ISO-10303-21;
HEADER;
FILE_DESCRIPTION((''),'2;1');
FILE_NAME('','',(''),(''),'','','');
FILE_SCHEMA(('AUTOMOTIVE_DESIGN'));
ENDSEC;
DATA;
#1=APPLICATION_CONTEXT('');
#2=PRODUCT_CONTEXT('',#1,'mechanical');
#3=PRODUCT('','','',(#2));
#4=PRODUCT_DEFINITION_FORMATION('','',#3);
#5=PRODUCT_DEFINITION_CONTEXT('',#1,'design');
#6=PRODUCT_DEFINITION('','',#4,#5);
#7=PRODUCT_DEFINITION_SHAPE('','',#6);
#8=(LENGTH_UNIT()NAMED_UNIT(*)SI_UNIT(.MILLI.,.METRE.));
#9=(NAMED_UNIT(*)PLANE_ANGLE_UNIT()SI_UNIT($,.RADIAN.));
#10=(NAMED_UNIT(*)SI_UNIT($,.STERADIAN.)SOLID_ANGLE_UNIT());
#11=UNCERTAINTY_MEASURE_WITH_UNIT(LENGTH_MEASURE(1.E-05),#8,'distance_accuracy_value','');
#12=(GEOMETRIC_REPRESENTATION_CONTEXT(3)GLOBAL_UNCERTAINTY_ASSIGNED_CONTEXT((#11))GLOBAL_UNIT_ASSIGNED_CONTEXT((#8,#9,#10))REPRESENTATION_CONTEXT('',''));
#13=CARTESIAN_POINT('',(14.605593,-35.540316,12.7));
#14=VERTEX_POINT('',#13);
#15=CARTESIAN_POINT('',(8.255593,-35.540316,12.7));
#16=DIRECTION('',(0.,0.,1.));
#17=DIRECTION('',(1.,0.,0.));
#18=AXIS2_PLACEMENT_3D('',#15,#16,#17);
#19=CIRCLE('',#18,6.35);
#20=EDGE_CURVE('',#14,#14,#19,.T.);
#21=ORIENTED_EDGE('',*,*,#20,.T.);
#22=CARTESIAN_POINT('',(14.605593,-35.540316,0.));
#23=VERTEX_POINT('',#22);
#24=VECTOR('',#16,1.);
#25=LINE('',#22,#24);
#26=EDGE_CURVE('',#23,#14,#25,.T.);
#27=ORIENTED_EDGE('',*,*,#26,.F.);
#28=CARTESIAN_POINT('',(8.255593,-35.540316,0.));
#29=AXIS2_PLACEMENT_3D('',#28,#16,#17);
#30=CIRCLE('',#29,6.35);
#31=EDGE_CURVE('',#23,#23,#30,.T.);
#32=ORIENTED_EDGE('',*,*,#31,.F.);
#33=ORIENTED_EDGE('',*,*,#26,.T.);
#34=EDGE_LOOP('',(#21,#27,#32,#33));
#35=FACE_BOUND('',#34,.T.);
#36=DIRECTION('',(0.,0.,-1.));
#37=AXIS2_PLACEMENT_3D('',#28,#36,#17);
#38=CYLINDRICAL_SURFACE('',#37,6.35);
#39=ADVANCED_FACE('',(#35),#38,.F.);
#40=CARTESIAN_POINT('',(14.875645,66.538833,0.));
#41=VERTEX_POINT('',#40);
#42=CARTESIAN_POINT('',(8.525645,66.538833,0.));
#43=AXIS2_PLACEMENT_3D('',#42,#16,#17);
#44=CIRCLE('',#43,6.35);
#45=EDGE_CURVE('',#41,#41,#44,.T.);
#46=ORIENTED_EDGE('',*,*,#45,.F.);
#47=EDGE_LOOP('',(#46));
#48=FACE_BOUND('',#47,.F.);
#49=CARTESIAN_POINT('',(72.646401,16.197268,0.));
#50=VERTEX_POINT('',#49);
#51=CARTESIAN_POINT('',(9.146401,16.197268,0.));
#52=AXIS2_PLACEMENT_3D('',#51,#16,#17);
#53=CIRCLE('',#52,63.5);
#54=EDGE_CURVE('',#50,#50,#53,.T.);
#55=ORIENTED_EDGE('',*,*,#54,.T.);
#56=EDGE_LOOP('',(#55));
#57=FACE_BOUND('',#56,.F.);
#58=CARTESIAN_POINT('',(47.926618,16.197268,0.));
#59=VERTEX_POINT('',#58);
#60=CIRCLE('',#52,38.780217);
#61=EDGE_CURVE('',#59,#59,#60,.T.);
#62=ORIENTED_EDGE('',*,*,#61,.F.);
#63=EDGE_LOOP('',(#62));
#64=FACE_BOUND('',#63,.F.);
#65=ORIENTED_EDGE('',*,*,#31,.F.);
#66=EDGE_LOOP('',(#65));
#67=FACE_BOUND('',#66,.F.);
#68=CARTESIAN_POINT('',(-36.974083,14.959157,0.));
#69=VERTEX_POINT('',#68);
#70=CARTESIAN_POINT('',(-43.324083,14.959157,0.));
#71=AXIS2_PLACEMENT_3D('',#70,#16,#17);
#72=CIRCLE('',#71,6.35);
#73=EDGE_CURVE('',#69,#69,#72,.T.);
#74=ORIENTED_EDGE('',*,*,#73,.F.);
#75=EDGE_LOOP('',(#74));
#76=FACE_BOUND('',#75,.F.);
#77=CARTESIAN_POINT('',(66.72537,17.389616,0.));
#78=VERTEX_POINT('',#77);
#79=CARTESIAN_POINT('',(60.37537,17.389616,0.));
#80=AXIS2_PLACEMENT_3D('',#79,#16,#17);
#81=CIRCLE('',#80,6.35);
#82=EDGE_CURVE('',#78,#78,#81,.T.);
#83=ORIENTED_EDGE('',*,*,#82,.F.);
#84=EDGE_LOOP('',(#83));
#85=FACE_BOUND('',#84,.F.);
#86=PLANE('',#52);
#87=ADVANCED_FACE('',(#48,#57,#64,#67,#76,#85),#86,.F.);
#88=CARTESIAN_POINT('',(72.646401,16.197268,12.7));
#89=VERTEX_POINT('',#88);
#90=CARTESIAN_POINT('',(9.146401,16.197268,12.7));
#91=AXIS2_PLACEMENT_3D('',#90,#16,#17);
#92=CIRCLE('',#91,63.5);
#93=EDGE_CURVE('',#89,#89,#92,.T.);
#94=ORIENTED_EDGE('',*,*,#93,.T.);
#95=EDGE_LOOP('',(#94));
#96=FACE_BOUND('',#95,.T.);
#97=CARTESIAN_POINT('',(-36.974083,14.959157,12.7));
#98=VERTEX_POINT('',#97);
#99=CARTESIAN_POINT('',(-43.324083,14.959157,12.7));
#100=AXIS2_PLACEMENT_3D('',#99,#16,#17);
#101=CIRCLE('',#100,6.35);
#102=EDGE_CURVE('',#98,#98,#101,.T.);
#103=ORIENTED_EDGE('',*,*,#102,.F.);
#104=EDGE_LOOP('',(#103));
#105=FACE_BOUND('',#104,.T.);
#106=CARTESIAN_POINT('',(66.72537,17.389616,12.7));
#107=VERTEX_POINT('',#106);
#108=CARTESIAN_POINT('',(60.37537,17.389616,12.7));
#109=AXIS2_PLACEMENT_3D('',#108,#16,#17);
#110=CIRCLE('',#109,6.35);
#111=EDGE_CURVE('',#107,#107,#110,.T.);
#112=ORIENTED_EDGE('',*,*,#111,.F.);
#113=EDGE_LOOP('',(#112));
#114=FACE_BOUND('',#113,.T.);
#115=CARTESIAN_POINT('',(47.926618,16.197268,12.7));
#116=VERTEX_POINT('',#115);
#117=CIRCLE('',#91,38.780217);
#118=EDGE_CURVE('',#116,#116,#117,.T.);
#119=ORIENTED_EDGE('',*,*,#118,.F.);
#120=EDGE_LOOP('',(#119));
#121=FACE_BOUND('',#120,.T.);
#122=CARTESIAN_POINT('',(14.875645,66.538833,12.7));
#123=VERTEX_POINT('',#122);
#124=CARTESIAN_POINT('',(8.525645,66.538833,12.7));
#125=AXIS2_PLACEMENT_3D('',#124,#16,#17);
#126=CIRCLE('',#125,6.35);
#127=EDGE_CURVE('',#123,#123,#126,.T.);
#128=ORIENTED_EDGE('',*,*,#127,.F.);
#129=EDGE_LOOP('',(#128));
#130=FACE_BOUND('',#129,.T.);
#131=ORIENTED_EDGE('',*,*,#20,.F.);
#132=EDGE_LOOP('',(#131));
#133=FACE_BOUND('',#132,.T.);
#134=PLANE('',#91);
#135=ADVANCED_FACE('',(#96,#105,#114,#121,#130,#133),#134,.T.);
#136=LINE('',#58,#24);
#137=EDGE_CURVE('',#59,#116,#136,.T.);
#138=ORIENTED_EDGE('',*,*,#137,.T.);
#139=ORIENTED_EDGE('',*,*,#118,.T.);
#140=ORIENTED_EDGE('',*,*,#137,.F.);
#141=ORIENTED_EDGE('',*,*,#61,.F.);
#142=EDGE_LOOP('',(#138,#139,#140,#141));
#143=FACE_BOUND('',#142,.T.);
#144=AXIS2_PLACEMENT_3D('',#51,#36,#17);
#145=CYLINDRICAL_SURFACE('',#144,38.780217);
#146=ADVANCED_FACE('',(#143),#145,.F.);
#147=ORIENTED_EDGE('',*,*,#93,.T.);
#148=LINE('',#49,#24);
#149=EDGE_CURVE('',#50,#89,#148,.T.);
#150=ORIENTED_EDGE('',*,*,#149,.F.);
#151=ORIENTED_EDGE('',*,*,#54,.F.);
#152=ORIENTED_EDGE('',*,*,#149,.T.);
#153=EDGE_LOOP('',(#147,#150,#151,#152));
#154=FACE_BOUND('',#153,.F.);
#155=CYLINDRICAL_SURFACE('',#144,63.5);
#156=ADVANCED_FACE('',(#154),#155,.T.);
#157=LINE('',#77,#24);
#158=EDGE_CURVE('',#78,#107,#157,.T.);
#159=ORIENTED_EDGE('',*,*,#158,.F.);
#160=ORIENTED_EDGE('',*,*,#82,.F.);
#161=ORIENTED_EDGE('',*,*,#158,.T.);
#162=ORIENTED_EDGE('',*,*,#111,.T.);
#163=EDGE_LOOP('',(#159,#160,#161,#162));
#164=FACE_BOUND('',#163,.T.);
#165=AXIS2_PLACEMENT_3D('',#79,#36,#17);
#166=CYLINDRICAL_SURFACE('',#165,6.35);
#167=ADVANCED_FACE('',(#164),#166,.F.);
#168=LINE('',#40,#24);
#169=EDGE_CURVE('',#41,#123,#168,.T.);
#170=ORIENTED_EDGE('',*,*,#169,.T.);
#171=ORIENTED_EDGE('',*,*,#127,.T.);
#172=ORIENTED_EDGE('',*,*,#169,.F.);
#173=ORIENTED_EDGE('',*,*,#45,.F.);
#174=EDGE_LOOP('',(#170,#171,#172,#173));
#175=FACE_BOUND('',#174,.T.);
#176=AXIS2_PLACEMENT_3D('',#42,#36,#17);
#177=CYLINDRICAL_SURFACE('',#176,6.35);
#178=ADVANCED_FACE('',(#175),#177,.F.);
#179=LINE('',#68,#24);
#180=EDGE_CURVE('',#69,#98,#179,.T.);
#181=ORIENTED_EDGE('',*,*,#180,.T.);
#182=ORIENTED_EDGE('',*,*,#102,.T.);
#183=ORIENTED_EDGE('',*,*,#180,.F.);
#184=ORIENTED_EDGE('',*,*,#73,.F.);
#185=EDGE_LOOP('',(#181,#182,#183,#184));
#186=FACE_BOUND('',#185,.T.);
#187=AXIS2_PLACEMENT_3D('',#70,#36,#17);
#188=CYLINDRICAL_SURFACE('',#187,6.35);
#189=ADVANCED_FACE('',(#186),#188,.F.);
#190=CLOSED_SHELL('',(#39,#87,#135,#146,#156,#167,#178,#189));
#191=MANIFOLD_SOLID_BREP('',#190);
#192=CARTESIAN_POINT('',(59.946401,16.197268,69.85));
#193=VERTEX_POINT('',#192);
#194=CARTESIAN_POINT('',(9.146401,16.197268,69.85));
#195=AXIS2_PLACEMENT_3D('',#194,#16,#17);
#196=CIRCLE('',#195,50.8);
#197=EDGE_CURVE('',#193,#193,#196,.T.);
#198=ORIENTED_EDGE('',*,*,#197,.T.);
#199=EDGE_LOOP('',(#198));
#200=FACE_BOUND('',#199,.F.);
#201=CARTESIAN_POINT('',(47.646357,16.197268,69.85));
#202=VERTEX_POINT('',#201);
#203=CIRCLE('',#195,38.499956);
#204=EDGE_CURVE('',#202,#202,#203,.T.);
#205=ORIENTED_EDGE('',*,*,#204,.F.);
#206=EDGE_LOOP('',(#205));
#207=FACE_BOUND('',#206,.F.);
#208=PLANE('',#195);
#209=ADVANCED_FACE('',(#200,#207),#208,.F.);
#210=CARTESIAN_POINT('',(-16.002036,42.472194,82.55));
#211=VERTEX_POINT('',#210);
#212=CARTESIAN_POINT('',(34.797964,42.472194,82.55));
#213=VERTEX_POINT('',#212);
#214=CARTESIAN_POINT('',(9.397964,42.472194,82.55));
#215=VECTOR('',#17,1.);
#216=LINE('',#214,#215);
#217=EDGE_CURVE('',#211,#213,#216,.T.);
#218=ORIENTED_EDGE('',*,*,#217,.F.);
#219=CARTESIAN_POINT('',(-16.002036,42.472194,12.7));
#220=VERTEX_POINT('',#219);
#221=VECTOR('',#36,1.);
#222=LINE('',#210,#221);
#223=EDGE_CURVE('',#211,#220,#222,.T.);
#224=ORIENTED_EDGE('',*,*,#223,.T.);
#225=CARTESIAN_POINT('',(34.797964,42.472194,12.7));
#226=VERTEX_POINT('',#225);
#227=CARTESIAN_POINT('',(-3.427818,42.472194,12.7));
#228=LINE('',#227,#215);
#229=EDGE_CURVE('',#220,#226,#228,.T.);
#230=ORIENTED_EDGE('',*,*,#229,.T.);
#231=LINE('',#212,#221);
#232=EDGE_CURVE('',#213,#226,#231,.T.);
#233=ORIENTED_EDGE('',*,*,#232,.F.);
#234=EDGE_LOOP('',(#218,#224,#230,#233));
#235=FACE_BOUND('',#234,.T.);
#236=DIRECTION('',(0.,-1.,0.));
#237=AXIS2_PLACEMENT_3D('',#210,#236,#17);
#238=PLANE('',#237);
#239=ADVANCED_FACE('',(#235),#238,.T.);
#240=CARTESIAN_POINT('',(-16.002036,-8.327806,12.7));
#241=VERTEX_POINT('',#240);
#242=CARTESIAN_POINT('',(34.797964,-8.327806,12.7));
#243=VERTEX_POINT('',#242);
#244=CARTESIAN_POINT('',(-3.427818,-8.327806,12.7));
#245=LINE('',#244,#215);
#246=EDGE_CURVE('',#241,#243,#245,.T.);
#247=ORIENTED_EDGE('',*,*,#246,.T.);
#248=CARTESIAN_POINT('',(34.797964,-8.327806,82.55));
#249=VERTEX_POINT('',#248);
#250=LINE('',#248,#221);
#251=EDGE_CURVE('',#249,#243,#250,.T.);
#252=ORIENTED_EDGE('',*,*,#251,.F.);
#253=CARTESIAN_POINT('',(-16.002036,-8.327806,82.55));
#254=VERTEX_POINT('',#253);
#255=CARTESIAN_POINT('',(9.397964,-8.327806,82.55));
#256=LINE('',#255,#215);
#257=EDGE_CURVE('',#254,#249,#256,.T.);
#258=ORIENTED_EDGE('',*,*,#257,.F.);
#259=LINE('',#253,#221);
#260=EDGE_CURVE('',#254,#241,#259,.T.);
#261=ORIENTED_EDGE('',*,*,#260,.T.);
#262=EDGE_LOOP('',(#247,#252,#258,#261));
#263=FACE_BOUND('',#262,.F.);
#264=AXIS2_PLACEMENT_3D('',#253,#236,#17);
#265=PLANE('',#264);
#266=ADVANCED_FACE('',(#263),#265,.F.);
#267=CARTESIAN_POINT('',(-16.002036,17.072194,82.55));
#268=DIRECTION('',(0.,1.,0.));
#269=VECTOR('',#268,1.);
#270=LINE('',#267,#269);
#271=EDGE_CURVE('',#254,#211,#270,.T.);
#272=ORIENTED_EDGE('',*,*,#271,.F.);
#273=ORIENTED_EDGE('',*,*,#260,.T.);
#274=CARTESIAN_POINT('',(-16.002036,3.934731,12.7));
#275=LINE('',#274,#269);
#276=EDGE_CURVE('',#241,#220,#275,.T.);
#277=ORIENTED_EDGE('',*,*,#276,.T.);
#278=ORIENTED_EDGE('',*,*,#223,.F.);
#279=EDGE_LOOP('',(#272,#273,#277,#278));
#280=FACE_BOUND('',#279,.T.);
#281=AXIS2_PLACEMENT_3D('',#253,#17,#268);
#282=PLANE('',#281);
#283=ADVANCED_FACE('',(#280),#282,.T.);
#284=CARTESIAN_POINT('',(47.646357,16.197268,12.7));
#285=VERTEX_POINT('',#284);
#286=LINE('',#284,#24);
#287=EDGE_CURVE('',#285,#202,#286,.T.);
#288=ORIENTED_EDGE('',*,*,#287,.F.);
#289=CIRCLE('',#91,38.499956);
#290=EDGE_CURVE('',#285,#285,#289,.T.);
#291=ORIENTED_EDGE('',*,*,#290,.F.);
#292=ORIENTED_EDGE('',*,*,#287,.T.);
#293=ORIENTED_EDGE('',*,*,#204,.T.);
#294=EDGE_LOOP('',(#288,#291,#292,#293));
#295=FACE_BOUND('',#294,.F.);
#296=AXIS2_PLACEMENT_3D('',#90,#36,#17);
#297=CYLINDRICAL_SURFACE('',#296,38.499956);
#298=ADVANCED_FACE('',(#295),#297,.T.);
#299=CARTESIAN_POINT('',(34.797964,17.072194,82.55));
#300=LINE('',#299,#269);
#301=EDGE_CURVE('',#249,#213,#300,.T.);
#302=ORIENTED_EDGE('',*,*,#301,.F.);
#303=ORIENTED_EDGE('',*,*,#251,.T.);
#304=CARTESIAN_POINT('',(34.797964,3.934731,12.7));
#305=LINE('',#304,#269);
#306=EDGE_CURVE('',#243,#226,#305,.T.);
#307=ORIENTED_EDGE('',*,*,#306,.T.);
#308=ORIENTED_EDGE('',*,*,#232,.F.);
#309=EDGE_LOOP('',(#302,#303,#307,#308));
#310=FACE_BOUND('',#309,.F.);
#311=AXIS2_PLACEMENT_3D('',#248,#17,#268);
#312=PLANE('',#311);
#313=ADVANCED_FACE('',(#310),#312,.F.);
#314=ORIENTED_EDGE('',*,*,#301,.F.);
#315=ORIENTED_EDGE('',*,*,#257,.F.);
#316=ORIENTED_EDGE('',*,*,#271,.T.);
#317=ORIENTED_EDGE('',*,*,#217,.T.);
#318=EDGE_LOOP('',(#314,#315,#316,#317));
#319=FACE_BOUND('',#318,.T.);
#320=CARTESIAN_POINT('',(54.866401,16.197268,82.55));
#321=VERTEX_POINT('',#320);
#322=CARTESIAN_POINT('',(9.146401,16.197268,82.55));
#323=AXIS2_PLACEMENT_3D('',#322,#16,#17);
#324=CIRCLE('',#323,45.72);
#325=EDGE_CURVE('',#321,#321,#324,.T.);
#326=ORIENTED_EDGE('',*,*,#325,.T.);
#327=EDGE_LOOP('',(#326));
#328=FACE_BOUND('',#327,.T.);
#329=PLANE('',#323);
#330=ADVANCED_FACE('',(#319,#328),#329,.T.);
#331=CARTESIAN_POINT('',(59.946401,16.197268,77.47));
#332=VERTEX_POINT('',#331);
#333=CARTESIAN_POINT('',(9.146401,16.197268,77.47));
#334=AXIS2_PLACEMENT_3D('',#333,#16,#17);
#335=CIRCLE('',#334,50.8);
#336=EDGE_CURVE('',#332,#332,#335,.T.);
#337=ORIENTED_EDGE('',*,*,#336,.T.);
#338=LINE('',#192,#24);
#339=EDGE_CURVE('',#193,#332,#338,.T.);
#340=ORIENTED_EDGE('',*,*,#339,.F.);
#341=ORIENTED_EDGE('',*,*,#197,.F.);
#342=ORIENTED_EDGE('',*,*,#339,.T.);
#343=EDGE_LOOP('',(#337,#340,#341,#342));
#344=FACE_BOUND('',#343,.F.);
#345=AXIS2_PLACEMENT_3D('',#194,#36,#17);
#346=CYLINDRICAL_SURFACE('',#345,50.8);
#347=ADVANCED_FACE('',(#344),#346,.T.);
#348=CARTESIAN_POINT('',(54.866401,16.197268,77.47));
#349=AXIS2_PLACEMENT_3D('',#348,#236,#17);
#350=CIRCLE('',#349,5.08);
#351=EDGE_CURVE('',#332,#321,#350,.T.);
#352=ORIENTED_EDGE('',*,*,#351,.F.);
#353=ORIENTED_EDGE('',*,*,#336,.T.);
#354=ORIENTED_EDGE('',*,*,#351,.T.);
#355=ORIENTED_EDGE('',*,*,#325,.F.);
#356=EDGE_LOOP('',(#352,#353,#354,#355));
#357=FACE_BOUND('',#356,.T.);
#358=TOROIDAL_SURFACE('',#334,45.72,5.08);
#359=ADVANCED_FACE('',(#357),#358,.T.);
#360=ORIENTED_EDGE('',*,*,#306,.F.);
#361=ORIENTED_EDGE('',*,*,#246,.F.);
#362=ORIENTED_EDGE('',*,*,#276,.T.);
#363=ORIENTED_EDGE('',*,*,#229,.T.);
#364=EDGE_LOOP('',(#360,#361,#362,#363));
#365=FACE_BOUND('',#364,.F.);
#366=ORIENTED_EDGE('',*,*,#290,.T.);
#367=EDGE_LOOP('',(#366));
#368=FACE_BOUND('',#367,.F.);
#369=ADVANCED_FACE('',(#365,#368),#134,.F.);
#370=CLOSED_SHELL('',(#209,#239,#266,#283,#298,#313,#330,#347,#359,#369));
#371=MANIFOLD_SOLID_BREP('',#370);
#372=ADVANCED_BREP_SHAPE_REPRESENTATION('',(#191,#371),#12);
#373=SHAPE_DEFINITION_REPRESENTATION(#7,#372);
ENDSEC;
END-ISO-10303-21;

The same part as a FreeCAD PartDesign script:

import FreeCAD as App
import Part
import Sketcher
Q = App.Units.Quantity


def edges_at(feature, points):
    """Names of the edges that pass closest to the given points."""
    edges = feature.Shape.Edges
    near = lambda p: min(range(len(edges)), key=lambda i: edges[i].distToShape(Part.Vertex(*p))[0])
    return sorted({f"Edge{near(p) + 1}" for p in points})


def add_polygon(sketch, points):
    """Adds a closed chain of lines whose ends are joined by coincident constraints."""
    first, n = sketch.GeometryCount, len(points)
    for a, b in zip(points, points[1:] + points[:1]):
        sketch.addGeometry(Part.LineSegment(App.Vector(*a, 0), App.Vector(*b, 0)), False)
    for i in range(n):
        sketch.addConstraint(Sketcher.Constraint("Coincident", first + i, 2, first + (i + 1) % n, 1))

doc = App.newDocument("Part")
body = doc.addObject("PartDesign::Body", "Body")

sketch1 = body.newObject("Sketcher::SketchObject", "Sketch")
sketch1.AttachmentSupport = (doc.getObject("XY_Plane"), [""])
sketch1.MapMode = "FlatFace"
sketch1.addGeometry([
    Part.Circle(App.Vector(9, 16, 0), App.Vector(0, 0, 1), 64),
    Part.Circle(App.Vector(8, -36, 0), App.Vector(0, 0, 1), 6),
    Part.Circle(App.Vector(-43, 15, 0), App.Vector(0, 0, 1), 6),
    Part.Circle(App.Vector(9, 16, 0), App.Vector(0, 0, 1), 39),
    Part.Circle(App.Vector(60, 17, 0), App.Vector(0, 0, 1), 6),
    Part.Circle(App.Vector(9, 67, 0), App.Vector(0, 0, 1), 6),
], False)
sketch1.addConstraint([
    Sketcher.Constraint("Coincident", 3, 3, 0, 3),
    Sketcher.Constraint("Equal", 1, 2),
    Sketcher.Constraint("Equal", 2, 4),
    Sketcher.Constraint("Equal", 4, 5),
    Sketcher.Constraint("Diameter", 0, Q("5 in")),
    Sketcher.Constraint("Diameter", 1, Q("0.5 in")),
    Sketcher.Constraint("Diameter", 3, Q("77.560434 mm")),
    Sketcher.Constraint("DistanceX", -1, 1, 0, 3, Q("9.146401 mm")),
    Sketcher.Constraint("DistanceY", -1, 1, 0, 3, Q("16.197268 mm")),
    Sketcher.Constraint("DistanceX", -1, 1, 4, 3, Q("60.37537 mm")),
    Sketcher.Constraint("DistanceY", 2, 3, 0, 3, Q("1.238111 mm")),
    Sketcher.Constraint("DistanceY", 1, 3, 4, 3, Q("52.929932 mm")),
    Sketcher.Constraint("DistanceY", 2, 3, 4, 3, Q("2.430459 mm")),
    Sketcher.Constraint("DistanceY", 1, 3, 5, 3, Q("102.079149 mm")),
    Sketcher.Constraint("DistanceX", -1, 1, 1, 3, Q("8.255593 mm")),
    Sketcher.Constraint("DistanceX", 2, 3, -1, 1, Q("43.324083 mm")),
    Sketcher.Constraint("DistanceX", -1, 1, 5, 3, Q("8.525645 mm")),
])
pad1 = body.newObject("PartDesign::Pad", "Pad")
pad1.Profile = sketch1
pad1.Length = Q("0.5 in")
body2 = doc.addObject("PartDesign::Body", "Body001")

sketch2 = body2.newObject("Sketcher::SketchObject", "Sketch001")
sketch2.AttachmentSupport = (doc.getObject("XY_Plane001"), [""])
sketch2.MapMode = "FlatFace"
sketch2.AttachmentOffset = App.Placement(App.Vector(0, 0, 0.5 * 25.4), App.Rotation())
sketch2.addGeometry(Part.Circle(App.Vector(9, 16, 0), App.Vector(0, 0, 1), 38), False)
sketch2.addConstraint([
    Sketcher.Constraint("Diameter", 0, Q("76.999912 mm")),
    Sketcher.Constraint("DistanceX", -1, 1, 0, 3, Q("9.146401 mm")),
    Sketcher.Constraint("DistanceY", -1, 1, 0, 3, Q("16.197268 mm")),
])
pad2 = body2.newObject("PartDesign::Pad", "Pad001")
pad2.Profile = sketch2
pad2.Length = Q("2.25 in")

sketch3 = body2.newObject("Sketcher::SketchObject", "Sketch002")
sketch3.AttachmentSupport = (doc.getObject("XY_Plane001"), [""])
sketch3.MapMode = "FlatFace"
sketch3.AttachmentOffset = App.Placement(App.Vector(0, 0, 2.75 * 25.4), App.Rotation())
sketch3.addGeometry(Part.Circle(App.Vector(9, 16, 0), App.Vector(0, 0, 1), 51), False)
sketch3.addConstraint([
    Sketcher.Constraint("Diameter", 0, Q("4 in")),
    Sketcher.Constraint("DistanceX", -1, 1, 0, 3, Q("9.146401 mm")),
    Sketcher.Constraint("DistanceY", -1, 1, 0, 3, Q("16.197268 mm")),
])
pad3 = body2.newObject("PartDesign::Pad", "Pad002")
pad3.Profile = sketch3
pad3.Length = Q("0.5 in")

sketch4 = body2.newObject("Sketcher::SketchObject", "Sketch003")
sketch4.AttachmentSupport = (doc.getObject("XY_Plane001"), [""])
sketch4.MapMode = "FlatFace"
sketch4.AttachmentOffset = App.Placement(App.Vector(0, 0, 3.25 * 25.4), App.Rotation())
add_polygon(sketch4, [(-16, 42), (-16, -8), (35, -8), (35, 42)])
sketch4.addConstraint([
    Sketcher.Constraint("Vertical", 0),
    Sketcher.Constraint("Horizontal", 1),
    Sketcher.Constraint("Vertical", 2),
    Sketcher.Constraint("Horizontal", 3),
    Sketcher.Constraint("Equal", 3, 0),
    Sketcher.Constraint("DistanceX", 1, 1, 1, 2, Q("2 in")),
    Sketcher.Constraint("DistanceX", 0, 2, -1, 1, Q("16.002036 mm")),
    Sketcher.Constraint("DistanceY", 0, 2, -1, 1, Q("8.327806 mm")),
])
pocket1 = body2.newObject("PartDesign::Pocket", "Pocket")
pocket1.Profile = sketch4
pocket1.Length = Q("4.37 in")
doc.recompute()

fillet = body2.newObject("PartDesign::Fillet", "Fillet")
fillet.Base = (pocket1, edges_at(pocket1, [(-41.654, 16.197, 82.55)]))
fillet.Radius = Q("0.2 in")

doc.recompute()
